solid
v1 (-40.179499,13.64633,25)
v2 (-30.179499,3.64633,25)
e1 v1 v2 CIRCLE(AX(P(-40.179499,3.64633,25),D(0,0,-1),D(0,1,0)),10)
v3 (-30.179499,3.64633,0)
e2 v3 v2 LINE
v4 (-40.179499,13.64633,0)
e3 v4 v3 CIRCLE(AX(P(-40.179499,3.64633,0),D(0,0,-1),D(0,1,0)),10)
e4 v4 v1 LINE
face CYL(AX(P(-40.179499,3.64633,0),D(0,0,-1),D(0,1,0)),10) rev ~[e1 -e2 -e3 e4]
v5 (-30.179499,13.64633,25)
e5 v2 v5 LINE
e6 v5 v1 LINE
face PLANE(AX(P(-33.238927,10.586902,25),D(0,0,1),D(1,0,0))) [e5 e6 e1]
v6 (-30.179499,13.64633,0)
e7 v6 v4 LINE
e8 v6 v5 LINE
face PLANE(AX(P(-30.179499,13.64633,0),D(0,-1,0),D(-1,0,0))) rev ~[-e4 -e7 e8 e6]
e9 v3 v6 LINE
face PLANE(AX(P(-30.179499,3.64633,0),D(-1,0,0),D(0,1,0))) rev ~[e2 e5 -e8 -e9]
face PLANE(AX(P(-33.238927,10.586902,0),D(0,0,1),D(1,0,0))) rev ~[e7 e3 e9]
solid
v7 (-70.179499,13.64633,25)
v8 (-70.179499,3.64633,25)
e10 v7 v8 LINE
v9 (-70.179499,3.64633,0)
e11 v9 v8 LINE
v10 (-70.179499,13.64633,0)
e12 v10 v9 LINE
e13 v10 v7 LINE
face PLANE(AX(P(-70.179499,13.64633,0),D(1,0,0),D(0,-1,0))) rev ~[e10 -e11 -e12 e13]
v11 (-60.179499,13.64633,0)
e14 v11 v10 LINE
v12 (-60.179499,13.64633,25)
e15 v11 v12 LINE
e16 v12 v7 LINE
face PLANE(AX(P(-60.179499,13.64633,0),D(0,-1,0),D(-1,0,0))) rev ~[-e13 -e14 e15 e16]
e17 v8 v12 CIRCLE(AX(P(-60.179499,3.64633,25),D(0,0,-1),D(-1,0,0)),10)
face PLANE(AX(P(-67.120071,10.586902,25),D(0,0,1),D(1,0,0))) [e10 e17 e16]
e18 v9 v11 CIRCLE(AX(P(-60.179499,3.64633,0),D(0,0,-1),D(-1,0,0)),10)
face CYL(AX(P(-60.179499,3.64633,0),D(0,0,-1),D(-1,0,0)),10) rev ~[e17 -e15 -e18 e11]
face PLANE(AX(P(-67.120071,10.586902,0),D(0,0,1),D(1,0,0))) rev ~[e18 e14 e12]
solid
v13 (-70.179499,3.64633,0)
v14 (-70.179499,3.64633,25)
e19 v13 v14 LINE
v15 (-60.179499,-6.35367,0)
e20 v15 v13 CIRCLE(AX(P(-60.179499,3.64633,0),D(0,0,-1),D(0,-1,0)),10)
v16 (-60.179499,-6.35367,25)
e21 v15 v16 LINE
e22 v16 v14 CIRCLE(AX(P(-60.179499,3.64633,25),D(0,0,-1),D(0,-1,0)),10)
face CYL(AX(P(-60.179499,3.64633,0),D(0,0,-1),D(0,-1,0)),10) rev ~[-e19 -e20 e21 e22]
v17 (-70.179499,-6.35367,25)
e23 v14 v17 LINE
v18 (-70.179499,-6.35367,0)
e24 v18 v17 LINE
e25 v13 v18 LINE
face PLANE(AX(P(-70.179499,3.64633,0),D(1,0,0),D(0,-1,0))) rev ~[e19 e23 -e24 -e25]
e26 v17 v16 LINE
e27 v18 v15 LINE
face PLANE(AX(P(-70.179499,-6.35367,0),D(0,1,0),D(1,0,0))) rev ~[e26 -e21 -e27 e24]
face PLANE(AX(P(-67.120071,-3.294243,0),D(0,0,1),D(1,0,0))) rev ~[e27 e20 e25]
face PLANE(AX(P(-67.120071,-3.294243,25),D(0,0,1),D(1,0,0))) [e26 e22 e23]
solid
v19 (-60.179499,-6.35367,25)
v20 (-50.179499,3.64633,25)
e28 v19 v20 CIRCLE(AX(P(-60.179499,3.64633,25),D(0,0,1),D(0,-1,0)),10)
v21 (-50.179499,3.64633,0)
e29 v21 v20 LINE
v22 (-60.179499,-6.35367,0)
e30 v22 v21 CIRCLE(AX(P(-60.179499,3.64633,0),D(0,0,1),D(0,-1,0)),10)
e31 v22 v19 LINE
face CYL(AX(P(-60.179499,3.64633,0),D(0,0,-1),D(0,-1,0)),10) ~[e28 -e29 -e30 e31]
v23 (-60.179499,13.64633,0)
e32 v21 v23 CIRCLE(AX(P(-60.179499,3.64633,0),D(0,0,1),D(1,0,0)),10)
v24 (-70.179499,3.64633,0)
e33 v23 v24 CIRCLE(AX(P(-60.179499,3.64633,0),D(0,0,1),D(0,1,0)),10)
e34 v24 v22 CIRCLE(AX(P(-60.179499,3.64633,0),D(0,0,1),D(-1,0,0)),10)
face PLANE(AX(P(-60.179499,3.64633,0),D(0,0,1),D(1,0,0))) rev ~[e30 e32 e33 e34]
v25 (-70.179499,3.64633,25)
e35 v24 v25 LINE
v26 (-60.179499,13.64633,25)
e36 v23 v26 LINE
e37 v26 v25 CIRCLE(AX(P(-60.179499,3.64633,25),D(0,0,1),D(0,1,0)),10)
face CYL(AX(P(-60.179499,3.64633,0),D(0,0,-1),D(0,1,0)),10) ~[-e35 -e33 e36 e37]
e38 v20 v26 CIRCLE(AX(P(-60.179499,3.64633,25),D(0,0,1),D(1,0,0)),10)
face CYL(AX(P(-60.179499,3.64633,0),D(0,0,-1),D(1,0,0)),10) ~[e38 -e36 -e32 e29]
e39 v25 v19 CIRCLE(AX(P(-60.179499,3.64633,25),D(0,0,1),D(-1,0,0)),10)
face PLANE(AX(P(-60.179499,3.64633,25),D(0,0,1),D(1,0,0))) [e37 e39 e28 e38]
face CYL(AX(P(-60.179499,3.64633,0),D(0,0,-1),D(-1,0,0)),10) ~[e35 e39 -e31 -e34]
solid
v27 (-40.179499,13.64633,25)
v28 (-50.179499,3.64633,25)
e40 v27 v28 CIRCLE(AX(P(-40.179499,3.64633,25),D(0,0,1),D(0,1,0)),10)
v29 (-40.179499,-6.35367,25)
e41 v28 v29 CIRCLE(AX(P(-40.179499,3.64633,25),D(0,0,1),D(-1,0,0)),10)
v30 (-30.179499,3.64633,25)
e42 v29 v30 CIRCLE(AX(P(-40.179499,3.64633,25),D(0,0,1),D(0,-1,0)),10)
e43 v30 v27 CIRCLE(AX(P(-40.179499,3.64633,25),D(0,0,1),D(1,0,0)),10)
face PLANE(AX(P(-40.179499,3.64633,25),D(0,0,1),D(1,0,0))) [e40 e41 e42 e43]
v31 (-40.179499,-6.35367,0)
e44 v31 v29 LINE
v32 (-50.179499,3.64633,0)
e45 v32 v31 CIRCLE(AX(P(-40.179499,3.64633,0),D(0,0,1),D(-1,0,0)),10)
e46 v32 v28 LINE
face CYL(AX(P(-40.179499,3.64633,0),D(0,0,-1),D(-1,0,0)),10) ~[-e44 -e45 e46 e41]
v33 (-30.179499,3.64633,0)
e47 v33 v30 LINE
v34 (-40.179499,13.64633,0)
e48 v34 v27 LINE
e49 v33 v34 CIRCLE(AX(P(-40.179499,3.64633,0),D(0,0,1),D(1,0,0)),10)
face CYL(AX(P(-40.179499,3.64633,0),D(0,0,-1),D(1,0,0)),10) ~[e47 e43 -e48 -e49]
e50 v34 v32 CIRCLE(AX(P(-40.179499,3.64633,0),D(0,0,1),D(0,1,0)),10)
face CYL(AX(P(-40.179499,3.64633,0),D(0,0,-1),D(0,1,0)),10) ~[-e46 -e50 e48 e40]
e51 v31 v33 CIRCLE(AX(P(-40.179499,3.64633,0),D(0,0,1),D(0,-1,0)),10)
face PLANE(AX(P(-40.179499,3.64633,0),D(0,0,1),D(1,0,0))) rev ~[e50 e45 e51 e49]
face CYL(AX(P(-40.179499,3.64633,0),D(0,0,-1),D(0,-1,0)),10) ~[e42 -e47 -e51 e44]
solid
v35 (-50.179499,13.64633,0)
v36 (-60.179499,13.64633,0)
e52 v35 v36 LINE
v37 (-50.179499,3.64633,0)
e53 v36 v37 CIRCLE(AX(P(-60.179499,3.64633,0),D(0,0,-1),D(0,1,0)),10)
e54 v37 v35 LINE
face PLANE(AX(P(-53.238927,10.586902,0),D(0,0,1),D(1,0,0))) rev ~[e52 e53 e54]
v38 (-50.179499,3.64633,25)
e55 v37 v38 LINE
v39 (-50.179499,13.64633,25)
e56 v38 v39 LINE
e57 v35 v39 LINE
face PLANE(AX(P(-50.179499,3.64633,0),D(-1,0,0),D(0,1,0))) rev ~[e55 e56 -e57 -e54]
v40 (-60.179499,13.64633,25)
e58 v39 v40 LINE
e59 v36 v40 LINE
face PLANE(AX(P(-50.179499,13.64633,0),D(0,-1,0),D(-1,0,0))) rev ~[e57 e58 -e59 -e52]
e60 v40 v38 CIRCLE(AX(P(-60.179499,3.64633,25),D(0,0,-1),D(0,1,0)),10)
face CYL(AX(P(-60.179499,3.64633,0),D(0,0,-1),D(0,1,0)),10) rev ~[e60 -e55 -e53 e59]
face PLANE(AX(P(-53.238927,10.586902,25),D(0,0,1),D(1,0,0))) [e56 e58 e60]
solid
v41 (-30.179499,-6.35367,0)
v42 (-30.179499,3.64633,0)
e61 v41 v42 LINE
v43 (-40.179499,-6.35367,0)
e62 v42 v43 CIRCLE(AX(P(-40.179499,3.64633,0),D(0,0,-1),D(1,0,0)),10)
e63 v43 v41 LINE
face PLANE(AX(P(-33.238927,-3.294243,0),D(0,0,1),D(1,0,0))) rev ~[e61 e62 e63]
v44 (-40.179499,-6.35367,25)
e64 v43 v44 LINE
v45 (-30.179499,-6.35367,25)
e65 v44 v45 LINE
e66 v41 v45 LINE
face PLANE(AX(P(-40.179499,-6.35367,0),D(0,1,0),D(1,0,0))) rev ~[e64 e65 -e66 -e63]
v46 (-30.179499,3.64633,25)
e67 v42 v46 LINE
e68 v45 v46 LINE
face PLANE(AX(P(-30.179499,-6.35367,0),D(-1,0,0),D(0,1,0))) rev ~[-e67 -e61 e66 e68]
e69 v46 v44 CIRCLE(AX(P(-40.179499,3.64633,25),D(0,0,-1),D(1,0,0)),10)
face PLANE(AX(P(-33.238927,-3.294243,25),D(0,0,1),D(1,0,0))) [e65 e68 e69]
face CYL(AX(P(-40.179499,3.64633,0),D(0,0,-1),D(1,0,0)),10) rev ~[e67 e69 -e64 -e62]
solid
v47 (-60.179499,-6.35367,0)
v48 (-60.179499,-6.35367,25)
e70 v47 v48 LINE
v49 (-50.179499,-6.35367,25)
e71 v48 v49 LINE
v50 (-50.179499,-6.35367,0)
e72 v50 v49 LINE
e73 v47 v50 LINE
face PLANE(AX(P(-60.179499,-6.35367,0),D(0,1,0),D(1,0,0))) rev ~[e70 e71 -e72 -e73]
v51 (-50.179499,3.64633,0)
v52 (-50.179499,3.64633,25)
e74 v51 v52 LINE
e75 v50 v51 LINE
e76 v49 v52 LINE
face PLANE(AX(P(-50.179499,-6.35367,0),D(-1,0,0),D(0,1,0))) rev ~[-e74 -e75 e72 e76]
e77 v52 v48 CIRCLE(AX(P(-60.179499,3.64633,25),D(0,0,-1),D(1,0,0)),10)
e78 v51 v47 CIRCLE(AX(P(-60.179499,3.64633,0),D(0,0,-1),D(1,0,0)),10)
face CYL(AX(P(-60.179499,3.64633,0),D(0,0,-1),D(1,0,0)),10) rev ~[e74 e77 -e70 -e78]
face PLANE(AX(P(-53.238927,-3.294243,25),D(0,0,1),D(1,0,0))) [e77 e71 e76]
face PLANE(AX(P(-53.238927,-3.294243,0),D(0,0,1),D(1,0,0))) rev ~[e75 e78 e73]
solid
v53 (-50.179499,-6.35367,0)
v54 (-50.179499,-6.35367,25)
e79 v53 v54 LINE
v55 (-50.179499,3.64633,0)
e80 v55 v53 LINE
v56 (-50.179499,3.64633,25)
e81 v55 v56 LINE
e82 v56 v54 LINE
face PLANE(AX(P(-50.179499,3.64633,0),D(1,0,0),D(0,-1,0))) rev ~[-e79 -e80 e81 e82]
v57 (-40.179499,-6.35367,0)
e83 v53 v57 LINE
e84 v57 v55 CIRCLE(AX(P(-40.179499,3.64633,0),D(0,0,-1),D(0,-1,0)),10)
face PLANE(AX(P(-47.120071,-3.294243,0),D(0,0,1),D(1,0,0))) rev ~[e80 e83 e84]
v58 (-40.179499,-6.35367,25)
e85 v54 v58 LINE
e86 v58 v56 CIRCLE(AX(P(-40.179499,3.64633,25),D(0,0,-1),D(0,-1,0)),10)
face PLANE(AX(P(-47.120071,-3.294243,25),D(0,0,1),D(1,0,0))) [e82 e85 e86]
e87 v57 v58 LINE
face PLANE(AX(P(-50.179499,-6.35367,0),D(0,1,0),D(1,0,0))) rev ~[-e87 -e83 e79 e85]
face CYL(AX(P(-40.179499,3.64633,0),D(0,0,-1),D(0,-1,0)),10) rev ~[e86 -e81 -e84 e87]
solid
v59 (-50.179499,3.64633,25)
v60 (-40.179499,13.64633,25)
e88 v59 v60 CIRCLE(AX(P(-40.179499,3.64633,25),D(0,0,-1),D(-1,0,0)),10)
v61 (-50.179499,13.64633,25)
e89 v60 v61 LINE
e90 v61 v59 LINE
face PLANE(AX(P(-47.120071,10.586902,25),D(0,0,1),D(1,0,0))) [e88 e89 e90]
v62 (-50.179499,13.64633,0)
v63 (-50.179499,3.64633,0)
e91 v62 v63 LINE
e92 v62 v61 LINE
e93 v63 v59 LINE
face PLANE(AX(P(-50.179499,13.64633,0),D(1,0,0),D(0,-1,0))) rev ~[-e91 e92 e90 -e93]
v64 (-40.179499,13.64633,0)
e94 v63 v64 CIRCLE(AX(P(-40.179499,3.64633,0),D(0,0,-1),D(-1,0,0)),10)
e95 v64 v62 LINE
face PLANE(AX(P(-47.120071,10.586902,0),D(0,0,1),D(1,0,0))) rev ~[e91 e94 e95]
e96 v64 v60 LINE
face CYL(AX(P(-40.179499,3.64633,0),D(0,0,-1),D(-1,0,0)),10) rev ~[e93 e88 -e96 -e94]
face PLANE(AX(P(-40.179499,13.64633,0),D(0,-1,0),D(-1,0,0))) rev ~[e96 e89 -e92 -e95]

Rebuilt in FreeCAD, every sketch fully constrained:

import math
import FreeCAD as App
import Part
import Sketcher

V = App.Vector
Q = App.Units.Quantity

doc = App.newDocument("Part")
body = doc.addObject("PartDesign::Body", "Body")

# Sketch on XY plane
sketch1 = doc.addObject("Sketcher::SketchObject", "Sketch")
body.addObject(sketch1)
sketch1.AttachmentSupport = (doc.XY_Plane, [""])
sketch1.MapMode = "FlatFace"
sketch1.addGeometry([
    Part.LineSegment(V(-60, 14, 0), V(-70, 14, 0)),
    Part.LineSegment(V(-70, 14, 0), V(-70, 4, 0)),
    Part.ArcOfCircle(Part.Circle(V(-60, 4, 0), V(0, 0, 1), 10), math.radians(90), math.radians(180)),
], False)
sketch1.addConstraint([
    Sketcher.Constraint("Coincident", 0, 2, 1, 1),
    Sketcher.Constraint("Tangent", 1, 2, 2, 2),
    Sketcher.Constraint("Tangent", 2, 1, 0, 1),
    Sketcher.Constraint("Horizontal", 0),
    Sketcher.Constraint("Vertical", 1),
    Sketcher.Constraint("Radius", 2, Q("10 mm")),
    Sketcher.Constraint("DistanceX", 2, 3, -1, 1, Q("60.179499 mm")),
    Sketcher.Constraint("DistanceY", -1, 1, 2, 3, Q("3.64633 mm")),
])
pad1 = doc.addObject("PartDesign::Pad", "Pad")
body.addObject(pad1)
pad1.Profile = sketch1
pad1.Length = 25
body2 = doc.addObject("PartDesign::Body", "Body001")

# Sketch on XY plane
sketch2 = doc.addObject("Sketcher::SketchObject", "Sketch001")
body2.addObject(sketch2)
sketch2.AttachmentSupport = (doc.getObject("XY_Plane001"), [""])
sketch2.MapMode = "FlatFace"
sketch2.addGeometry([
    Part.LineSegment(V(-50, -6, 0), V(-50, 4, 0)),
    Part.ArcOfCircle(Part.Circle(V(-60, 4, 0), V(0, 0, 1), 10), math.radians(-90), math.radians(0)),
    Part.LineSegment(V(-60, -6, 0), V(-50, -6, 0)),
], False)
sketch2.addConstraint([
    Sketcher.Constraint("Tangent", 0, 2, 1, 2),
    Sketcher.Constraint("Tangent", 1, 1, 2, 1),
    Sketcher.Constraint("Coincident", 2, 2, 0, 1),
    Sketcher.Constraint("Vertical", 0),
    Sketcher.Constraint("Horizontal", 2),
    Sketcher.Constraint("Radius", 1, Q("10 mm")),
    Sketcher.Constraint("DistanceX", 1, 3, -1, 1, Q("60.179499 mm")),
    Sketcher.Constraint("DistanceY", -1, 1, 1, 3, Q("3.64633 mm")),
])
pad2 = doc.addObject("PartDesign::Pad", "Pad001")
body2.addObject(pad2)
pad2.Profile = sketch2
pad2.Length = 25
body3 = doc.addObject("PartDesign::Body", "Body002")

# Sketch on XY plane
sketch3 = doc.addObject("Sketcher::SketchObject", "Sketch002")
body3.addObject(sketch3)
sketch3.AttachmentSupport = (doc.getObject("XY_Plane002"), [""])
sketch3.MapMode = "FlatFace"
sketch3.addGeometry([
    Part.LineSegment(V(-40, 14, 0), V(-50, 14, 0)),
    Part.LineSegment(V(-50, 14, 0), V(-50, 4, 0)),
    Part.ArcOfCircle(Part.Circle(V(-40, 4, 0), V(0, 0, 1), 10), math.radians(90), math.radians(180)),
], False)
sketch3.addConstraint([
    Sketcher.Constraint("Coincident", 0, 2, 1, 1),
    Sketcher.Constraint("Tangent", 1, 2, 2, 2),
    Sketcher.Constraint("Tangent", 2, 1, 0, 1),
    Sketcher.Constraint("Horizontal", 0),
    Sketcher.Constraint("Vertical", 1),
    Sketcher.Constraint("Radius", 2, Q("10 mm")),
    Sketcher.Constraint("DistanceX", 2, 3, -1, 1, Q("40.179499 mm")),
    Sketcher.Constraint("DistanceY", -1, 1, 2, 3, Q("3.64633 mm")),
])
pad3 = doc.addObject("PartDesign::Pad", "Pad002")
body3.addObject(pad3)
pad3.Profile = sketch3
pad3.Length = 25
body4 = doc.addObject("PartDesign::Body", "Body003")

# Sketch on XY plane
sketch4 = doc.addObject("Sketcher::SketchObject", "Sketch003")
body4.addObject(sketch4)
sketch4.AttachmentSupport = (doc.getObject("XY_Plane003"), [""])
sketch4.MapMode = "FlatFace"
sketch4.addGeometry([
    Part.ArcOfCircle(Part.Circle(V(-40, 4, 0), V(0, 0, 1), 10), math.radians(-90), math.radians(0)),
    Part.LineSegment(V(-40, -6, 0), V(-30, -6, 0)),
    Part.LineSegment(V(-30, -6, 0), V(-30, 4, 0)),
], False)
sketch4.addConstraint([
    Sketcher.Constraint("Tangent", 0, 1, 1, 1),
    Sketcher.Constraint("Coincident", 1, 2, 2, 1),
    Sketcher.Constraint("Tangent", 2, 2, 0, 2),
    Sketcher.Constraint("Horizontal", 1),
    Sketcher.Constraint("Vertical", 2),
    Sketcher.Constraint("Radius", 0, Q("10 mm")),
    Sketcher.Constraint("DistanceX", 0, 3, -1, 1, Q("40.179499 mm")),
    Sketcher.Constraint("DistanceY", -1, 1, 0, 3, Q("3.64633 mm")),
])
pad4 = doc.addObject("PartDesign::Pad", "Pad003")
body4.addObject(pad4)
pad4.Profile = sketch4
pad4.Length = 25
body5 = doc.addObject("PartDesign::Body", "Body004")

# Sketch on XY plane
sketch5 = doc.addObject("Sketcher::SketchObject", "Sketch004")
body5.addObject(sketch5)
sketch5.AttachmentSupport = (doc.getObject("XY_Plane004"), [""])
sketch5.MapMode = "FlatFace"
sketch5.addGeometry([
    Part.ArcOfCircle(Part.Circle(V(-60, 4, 0), V(0, 0, 1), 10), math.radians(180), math.radians(270)),
    Part.LineSegment(V(-70, 4, 0), V(-70, -6, 0)),
    Part.LineSegment(V(-70, -6, 0), V(-60, -6, 0)),
], False)
sketch5.addConstraint([
    Sketcher.Constraint("Tangent", 0, 1, 1, 1),
    Sketcher.Constraint("Coincident", 1, 2, 2, 1),
    Sketcher.Constraint("Tangent", 2, 2, 0, 2),
    Sketcher.Constraint("Vertical", 1),
    Sketcher.Constraint("Horizontal", 2),
    Sketcher.Constraint("Radius", 0, Q("10 mm")),
    Sketcher.Constraint("DistanceX", 0, 3, -1, 1, Q("60.179499 mm")),
    Sketcher.Constraint("DistanceY", -1, 1, 0, 3, Q("3.64633 mm")),
])
pad5 = doc.addObject("PartDesign::Pad", "Pad004")
body5.addObject(pad5)
pad5.Profile = sketch5
pad5.Length = 25
body6 = doc.addObject("PartDesign::Body", "Body005")

# Sketch on XY plane
sketch6 = doc.addObject("Sketcher::SketchObject", "Sketch005")
body6.addObject(sketch6)
sketch6.AttachmentSupport = (doc.getObject("XY_Plane005"), [""])
sketch6.MapMode = "FlatFace"
sketch6.addGeometry([
    Part.LineSegment(V(-50, 14, 0), V(-60, 14, 0)),
    Part.ArcOfCircle(Part.Circle(V(-60, 4, 0), V(0, 0, 1), 10), math.radians(0), math.radians(90)),
    Part.LineSegment(V(-50, 4, 0), V(-50, 14, 0)),
], False)
sketch6.addConstraint([
    Sketcher.Constraint("Tangent", 0, 2, 1, 2),
    Sketcher.Constraint("Tangent", 1, 1, 2, 1),
    Sketcher.Constraint("Coincident", 2, 2, 0, 1),
    Sketcher.Constraint("Horizontal", 0),
    Sketcher.Constraint("Vertical", 2),
    Sketcher.Constraint("Radius", 1, Q("10 mm")),
    Sketcher.Constraint("DistanceX", 1, 3, -1, 1, Q("60.179499 mm")),
    Sketcher.Constraint("DistanceY", -1, 1, 1, 3, Q("3.64633 mm")),
])
pad6 = doc.addObject("PartDesign::Pad", "Pad005")
body6.addObject(pad6)
pad6.Profile = sketch6
pad6.Length = 25
body7 = doc.addObject("PartDesign::Body", "Body006")

# Sketch on XY plane
sketch7 = doc.addObject("Sketcher::SketchObject", "Sketch006")
body7.addObject(sketch7)
sketch7.AttachmentSupport = (doc.getObject("XY_Plane006"), [""])
sketch7.MapMode = "FlatFace"
sketch7.addGeometry([
    Part.ArcOfCircle(Part.Circle(V(-40, 4, 0), V(0, 0, 1), 10), math.radians(180), math.radians(270)),
    Part.LineSegment(V(-50, 4, 0), V(-50, -6, 0)),
    Part.LineSegment(V(-50, -6, 0), V(-40, -6, 0)),
], False)
sketch7.addConstraint([
    Sketcher.Constraint("Tangent", 0, 1, 1, 1),
    Sketcher.Constraint("Coincident", 1, 2, 2, 1),
    Sketcher.Constraint("Tangent", 2, 2, 0, 2),
    Sketcher.Constraint("Vertical", 1),
    Sketcher.Constraint("Horizontal", 2),
    Sketcher.Constraint("Radius", 0, Q("10 mm")),
    Sketcher.Constraint("DistanceX", 0, 3, -1, 1, Q("40.179499 mm")),
    Sketcher.Constraint("DistanceY", -1, 1, 0, 3, Q("3.64633 mm")),
])
pad7 = doc.addObject("PartDesign::Pad", "Pad006")
body7.addObject(pad7)
pad7.Profile = sketch7
pad7.Length = 25
body8 = doc.addObject("PartDesign::Body", "Body007")

# Sketch on XY plane
sketch8 = doc.addObject("Sketcher::SketchObject", "Sketch007")
body8.addObject(sketch8)
sketch8.AttachmentSupport = (doc.getObject("XY_Plane007"), [""])
sketch8.MapMode = "FlatFace"
sketch8.addGeometry([
    Part.LineSegment(V(-30, 14, 0), V(-40, 14, 0)),
    Part.ArcOfCircle(Part.Circle(V(-40, 4, 0), V(0, 0, 1), 10), math.radians(0), math.radians(90)),
    Part.LineSegment(V(-30, 4, 0), V(-30, 14, 0)),
], False)
sketch8.addConstraint([
    Sketcher.Constraint("Tangent", 0, 2, 1, 2),
    Sketcher.Constraint("Tangent", 1, 1, 2, 1),
    Sketcher.Constraint("Coincident", 2, 2, 0, 1),
    Sketcher.Constraint("Horizontal", 0),
    Sketcher.Constraint("Vertical", 2),
    Sketcher.Constraint("Radius", 1, Q("10 mm")),
    Sketcher.Constraint("DistanceX", 1, 3, -1, 1, Q("40.179499 mm")),
    Sketcher.Constraint("DistanceY", -1, 1, 1, 3, Q("3.64633 mm")),
])
pad8 = doc.addObject("PartDesign::Pad", "Pad007")
body8.addObject(pad8)
pad8.Profile = sketch8
pad8.Length = 25
body9 = doc.addObject("PartDesign::Body", "Body008")

# Sketch on XY plane
sketch9 = doc.addObject("Sketcher::SketchObject", "Sketch008")
body9.addObject(sketch9)
sketch9.AttachmentSupport = (doc.getObject("XY_Plane008"), [""])
sketch9.MapMode = "FlatFace"
sketch9.addGeometry([
    Part.ArcOfCircle(Part.Circle(V(-60, 4, 0), V(0, 0, 1), 10), math.radians(0), math.radians(90)),
    Part.ArcOfCircle(Part.Circle(V(-60, 4, 0), V(0, 0, 1), 10), math.radians(90), math.radians(180)),
    Part.ArcOfCircle(Part.Circle(V(-60, 4, 0), V(0, 0, 1), 10), math.radians(180), math.radians(270)),
    Part.ArcOfCircle(Part.Circle(V(-60, 4, 0), V(0, 0, 1), 10), math.radians(-90), math.radians(0)),
], False)
sketch9.addConstraint([
    Sketcher.Constraint("Tangent", 0, 2, 1, 1),
    Sketcher.Constraint("Tangent", 1, 2, 2, 1),
    Sketcher.Constraint("Tangent", 2, 2, 3, 1),
    Sketcher.Constraint("Tangent", 3, 2, 0, 1),
    Sketcher.Constraint("Equal", 0, 1),
    Sketcher.Constraint("Horizontal", 3, 3, 1, 2),
    Sketcher.Constraint("Horizontal", 1, 2, 3, 2),
    Sketcher.Constraint("Vertical", 3, 3, 0, 2),
    Sketcher.Constraint("Vertical", 0, 2, 2, 2),
    Sketcher.Constraint("Radius", 0, Q("10 mm")),
    Sketcher.Constraint("DistanceX", 0, 3, -1, 1, Q("60.179499 mm")),
    Sketcher.Constraint("DistanceY", -1, 1, 0, 3, Q("3.64633 mm")),
])
pad9 = doc.addObject("PartDesign::Pad", "Pad008")
body9.addObject(pad9)
pad9.Profile = sketch9
pad9.Length = 25
body10 = doc.addObject("PartDesign::Body", "Body009")

# Sketch on XY plane
sketch10 = doc.addObject("Sketcher::SketchObject", "Sketch009")
body10.addObject(sketch10)
sketch10.AttachmentSupport = (doc.getObject("XY_Plane009"), [""])
sketch10.MapMode = "FlatFace"
sketch10.addGeometry([
    Part.ArcOfCircle(Part.Circle(V(-40, 4, 0), V(0, 0, 1), 10), math.radians(90), math.radians(180)),
    Part.ArcOfCircle(Part.Circle(V(-40, 4, 0), V(0, 0, 1), 10), math.radians(180), math.radians(270)),
    Part.ArcOfCircle(Part.Circle(V(-40, 4, 0), V(0, 0, 1), 10), math.radians(-90), math.radians(0)),
    Part.ArcOfCircle(Part.Circle(V(-40, 4, 0), V(0, 0, 1), 10), math.radians(0), math.radians(90)),
], False)
sketch10.addConstraint([
    Sketcher.Constraint("Tangent", 0, 2, 1, 1),
    Sketcher.Constraint("Tangent", 1, 2, 2, 1),
    Sketcher.Constraint("Tangent", 2, 2, 3, 1),
    Sketcher.Constraint("Tangent", 3, 2, 0, 1),
    Sketcher.Constraint("Equal", 0, 1),
    Sketcher.Constraint("Horizontal", 3, 3, 0, 2),
    Sketcher.Constraint("Horizontal", 0, 2, 2, 2),
    Sketcher.Constraint("Vertical", 3, 3, 1, 2),
    Sketcher.Constraint("Vertical", 1, 2, 3, 2),
    Sketcher.Constraint("Radius", 0, Q("10 mm")),
    Sketcher.Constraint("DistanceX", 0, 3, -1, 1, Q("40.179499 mm")),
    Sketcher.Constraint("DistanceY", -1, 1, 0, 3, Q("3.64633 mm")),
])
pad10 = doc.addObject("PartDesign::Pad", "Pad009")
body10.addObject(pad10)
pad10.Profile = sketch10
pad10.Length = 25

doc.recompute()
